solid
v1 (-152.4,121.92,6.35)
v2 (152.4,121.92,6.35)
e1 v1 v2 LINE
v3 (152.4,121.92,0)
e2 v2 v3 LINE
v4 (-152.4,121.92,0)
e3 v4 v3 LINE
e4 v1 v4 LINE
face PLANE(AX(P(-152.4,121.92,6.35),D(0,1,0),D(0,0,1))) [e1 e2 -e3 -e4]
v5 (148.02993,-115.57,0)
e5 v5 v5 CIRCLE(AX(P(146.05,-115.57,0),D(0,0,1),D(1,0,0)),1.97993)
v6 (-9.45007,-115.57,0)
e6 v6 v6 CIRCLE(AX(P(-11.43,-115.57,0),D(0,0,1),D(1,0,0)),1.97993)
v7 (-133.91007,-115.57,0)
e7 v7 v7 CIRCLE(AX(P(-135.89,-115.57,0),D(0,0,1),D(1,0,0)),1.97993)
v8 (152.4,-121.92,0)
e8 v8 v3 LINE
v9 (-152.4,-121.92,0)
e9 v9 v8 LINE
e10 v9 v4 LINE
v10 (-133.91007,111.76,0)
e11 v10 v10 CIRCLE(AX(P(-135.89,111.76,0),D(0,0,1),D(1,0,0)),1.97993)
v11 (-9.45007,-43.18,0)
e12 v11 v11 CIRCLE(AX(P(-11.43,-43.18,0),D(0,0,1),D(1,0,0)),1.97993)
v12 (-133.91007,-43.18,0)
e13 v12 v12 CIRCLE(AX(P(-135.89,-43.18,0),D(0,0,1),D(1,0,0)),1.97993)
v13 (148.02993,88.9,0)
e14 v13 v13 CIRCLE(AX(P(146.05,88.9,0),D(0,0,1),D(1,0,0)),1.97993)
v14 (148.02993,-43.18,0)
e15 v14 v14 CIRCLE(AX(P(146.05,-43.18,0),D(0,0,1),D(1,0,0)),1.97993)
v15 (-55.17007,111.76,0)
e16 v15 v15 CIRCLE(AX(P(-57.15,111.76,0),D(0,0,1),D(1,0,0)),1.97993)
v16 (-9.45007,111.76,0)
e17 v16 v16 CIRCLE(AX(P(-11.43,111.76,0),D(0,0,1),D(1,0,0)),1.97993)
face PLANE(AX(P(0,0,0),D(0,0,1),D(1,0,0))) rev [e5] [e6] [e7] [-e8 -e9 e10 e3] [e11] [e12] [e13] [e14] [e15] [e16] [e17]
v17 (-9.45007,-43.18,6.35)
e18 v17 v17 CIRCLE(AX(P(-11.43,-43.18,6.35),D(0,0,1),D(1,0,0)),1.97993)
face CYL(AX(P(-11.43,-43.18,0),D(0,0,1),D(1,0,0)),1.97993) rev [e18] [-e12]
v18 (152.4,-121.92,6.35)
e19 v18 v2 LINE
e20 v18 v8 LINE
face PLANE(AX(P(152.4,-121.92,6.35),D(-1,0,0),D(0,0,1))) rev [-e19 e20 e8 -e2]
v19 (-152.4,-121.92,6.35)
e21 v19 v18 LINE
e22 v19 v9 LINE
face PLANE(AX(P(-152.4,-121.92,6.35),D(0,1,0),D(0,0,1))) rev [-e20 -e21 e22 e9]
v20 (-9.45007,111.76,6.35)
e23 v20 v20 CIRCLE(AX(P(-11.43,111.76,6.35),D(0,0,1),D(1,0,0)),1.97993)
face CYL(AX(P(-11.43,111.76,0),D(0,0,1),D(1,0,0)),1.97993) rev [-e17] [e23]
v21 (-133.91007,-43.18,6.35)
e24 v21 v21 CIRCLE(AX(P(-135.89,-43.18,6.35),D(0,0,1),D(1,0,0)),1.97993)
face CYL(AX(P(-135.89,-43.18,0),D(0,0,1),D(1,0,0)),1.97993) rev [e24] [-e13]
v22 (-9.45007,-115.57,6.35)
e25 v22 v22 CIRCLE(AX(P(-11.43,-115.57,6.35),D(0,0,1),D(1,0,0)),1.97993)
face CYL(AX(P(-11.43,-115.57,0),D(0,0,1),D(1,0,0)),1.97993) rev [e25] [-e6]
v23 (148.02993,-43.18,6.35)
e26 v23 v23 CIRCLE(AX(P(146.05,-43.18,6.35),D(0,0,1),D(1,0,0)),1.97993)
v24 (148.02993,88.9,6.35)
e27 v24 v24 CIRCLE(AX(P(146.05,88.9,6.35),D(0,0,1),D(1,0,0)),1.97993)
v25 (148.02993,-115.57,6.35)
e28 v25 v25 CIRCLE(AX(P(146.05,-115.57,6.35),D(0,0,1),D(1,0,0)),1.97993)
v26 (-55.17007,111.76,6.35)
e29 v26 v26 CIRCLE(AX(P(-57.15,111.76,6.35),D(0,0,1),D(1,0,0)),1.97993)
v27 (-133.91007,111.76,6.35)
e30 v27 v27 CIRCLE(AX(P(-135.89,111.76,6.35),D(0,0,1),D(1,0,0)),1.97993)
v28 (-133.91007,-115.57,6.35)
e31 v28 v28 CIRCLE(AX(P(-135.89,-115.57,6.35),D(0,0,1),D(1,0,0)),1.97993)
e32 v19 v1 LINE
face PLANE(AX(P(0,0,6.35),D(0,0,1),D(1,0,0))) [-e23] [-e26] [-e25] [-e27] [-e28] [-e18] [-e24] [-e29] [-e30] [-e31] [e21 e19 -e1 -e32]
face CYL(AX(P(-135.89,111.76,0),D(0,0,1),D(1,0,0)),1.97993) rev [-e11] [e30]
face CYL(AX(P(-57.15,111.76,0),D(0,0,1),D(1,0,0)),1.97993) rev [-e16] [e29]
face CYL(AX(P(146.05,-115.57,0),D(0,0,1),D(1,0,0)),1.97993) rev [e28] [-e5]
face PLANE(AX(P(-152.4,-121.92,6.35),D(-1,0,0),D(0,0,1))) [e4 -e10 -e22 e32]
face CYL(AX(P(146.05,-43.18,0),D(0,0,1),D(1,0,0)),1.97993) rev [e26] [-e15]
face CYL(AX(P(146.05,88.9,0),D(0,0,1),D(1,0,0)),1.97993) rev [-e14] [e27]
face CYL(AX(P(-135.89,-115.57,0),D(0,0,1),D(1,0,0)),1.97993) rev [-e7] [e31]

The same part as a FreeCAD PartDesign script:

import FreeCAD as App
import Part
import Sketcher
from FreeCAD import Vector
Q = App.Units.Quantity


def add_polygon(sketch, points):
    """Adds a closed chain of lines whose ends are joined by coincident constraints."""
    first, n = sketch.GeometryCount, len(points)
    for a, b in zip(points, points[1:] + points[:1]):
        sketch.addGeometry(Part.LineSegment(App.Vector(*a, 0), App.Vector(*b, 0)), False)
    for i in range(n):
        sketch.addConstraint(Sketcher.Constraint("Coincident", first + i, 2, first + (i + 1) % n, 1))

doc = App.newDocument("Part")
body = doc.addObject("PartDesign::Body", "Body")

# Sketch on XY plane
sketch1 = body.newObject("Sketcher::SketchObject", "Sketch")
sketch1.AttachmentSupport = (doc.getObject("XY_Plane"), [""])
sketch1.MapMode = "FlatFace"
add_polygon(sketch1, [(-152, 122), (-152, -122), (152, -122), (152, 122)])  # lines 0-3
sketch1.addConstraint(Sketcher.Constraint("Vertical", 0))
sketch1.addConstraint(Sketcher.Constraint("Horizontal", 1))
sketch1.addConstraint(Sketcher.Constraint("Vertical", 2))
sketch1.addConstraint(Sketcher.Constraint("Horizontal", 3))
sketch1.addConstraint(Sketcher.Constraint("Symmetric", 0, 2, 2, 2, -1, 1))
sketch1.addConstraint(Sketcher.Constraint("DistanceX", 1, 1, 1, 2, Q("12 in")))
sketch1.addConstraint(Sketcher.Constraint("DistanceY", 0, 2, 0, 1, Q("9.6 in")))
pad1 = body.newObject("PartDesign::Pad", "Pad")
pad1.Profile = sketch1
pad1.Length = Q("0.25 in")

# Sketch on XY plane
sketch2 = body.newObject("Sketcher::SketchObject", "Sketch001")
sketch2.AttachmentSupport = (doc.getObject("XY_Plane"), [""])
sketch2.MapMode = "FlatFace"
sketch2.AttachmentOffset = App.Placement(Vector(0, 0, 0.25 * 25.4), App.Rotation())
sketch2.addGeometry(Part.Circle(Vector(-135.9, -43.2, 0), Vector(0, 0, 1), 2), False)
sketch2.addGeometry(Part.Circle(Vector(-11.4, -43.2, 0), Vector(0, 0, 1), 2), False)
sketch2.addGeometry(Part.Circle(Vector(146.1, -43.2, 0), Vector(0, 0, 1), 2), False)
sketch2.addGeometry(Part.Circle(Vector(-135.9, -115.6, 0), Vector(0, 0, 1), 2), False)
sketch2.addGeometry(Part.Circle(Vector(-11.4, -115.6, 0), Vector(0, 0, 1), 2), False)
sketch2.addGeometry(Part.Circle(Vector(146.1, -115.6, 0), Vector(0, 0, 1), 2), False)
sketch2.addGeometry(Part.Circle(Vector(-135.9, 111.8, 0), Vector(0, 0, 1), 2), False)
sketch2.addGeometry(Part.Circle(Vector(-57.1, 111.8, 0), Vector(0, 0, 1), 2), False)
sketch2.addGeometry(Part.Circle(Vector(-11.4, 111.8, 0), Vector(0, 0, 1), 2), False)
sketch2.addGeometry(Part.Circle(Vector(146.1, 88.9, 0), Vector(0, 0, 1), 2), False)
sketch2.addConstraint(Sketcher.Constraint("Equal", 0, 1))
sketch2.addConstraint(Sketcher.Constraint("Equal", 1, 2))
sketch2.addConstraint(Sketcher.Constraint("Equal", 2, 3))
sketch2.addConstraint(Sketcher.Constraint("Equal", 3, 4))
sketch2.addConstraint(Sketcher.Constraint("Equal", 4, 5))
sketch2.addConstraint(Sketcher.Constraint("Equal", 5, 6))
sketch2.addConstraint(Sketcher.Constraint("Equal", 6, 7))
sketch2.addConstraint(Sketcher.Constraint("Equal", 7, 8))
sketch2.addConstraint(Sketcher.Constraint("Equal", 8, 9))
sketch2.addConstraint(Sketcher.Constraint("Horizontal", 0, 3, 1, 3))
sketch2.addConstraint(Sketcher.Constraint("Horizontal", 1, 3, 2, 3))
sketch2.addConstraint(Sketcher.Constraint("Horizontal", 3, 3, 4, 3))
sketch2.addConstraint(Sketcher.Constraint("Horizontal", 4, 3, 5, 3))
sketch2.addConstraint(Sketcher.Constraint("Horizontal", 6, 3, 7, 3))
sketch2.addConstraint(Sketcher.Constraint("Horizontal", 7, 3, 8, 3))
sketch2.addConstraint(Sketcher.Constraint("Vertical", 0, 3, 3, 3))
sketch2.addConstraint(Sketcher.Constraint("Vertical", 1, 3, 4, 3))
sketch2.addConstraint(Sketcher.Constraint("Vertical", 2, 3, 5, 3))
sketch2.addConstraint(Sketcher.Constraint("Vertical", 3, 3, 6, 3))
sketch2.addConstraint(Sketcher.Constraint("Vertical", 4, 3, 8, 3))
sketch2.addConstraint(Sketcher.Constraint("Vertical", 5, 3, 9, 3))
sketch2.addConstraint(Sketcher.Constraint("DistanceX", 7, 3, 9, 3, Q("8 in")))
sketch2.addConstraint(Sketcher.Constraint("Diameter", 0, Q("0.1559 in")))
sketch2.addConstraint(Sketcher.Constraint("DistanceY", 0, 3, -1, 1, Q("1.7 in")))
sketch2.addConstraint(Sketcher.Constraint("DistanceY", -1, 1, 6, 3, Q("4.4 in")))
sketch2.addConstraint(Sketcher.Constraint("DistanceY", -1, 1, 9, 3, Q("3.5 in")))
sketch2.addConstraint(Sketcher.Constraint("DistanceX", 0, 3, 1, 3, Q("4.9 in")))
sketch2.addConstraint(Sketcher.Constraint("DistanceX", 1, 3, 2, 3, Q("6.2 in")))
sketch2.addConstraint(Sketcher.Constraint("DistanceX", 0, 3, -1, 1, Q("5.35 in")))
sketch2.addConstraint(Sketcher.Constraint("DistanceY", 3, 3, -1, 1, Q("4.55 in")))
pocket1 = body.newObject("PartDesign::Pocket", "Pocket")
pocket1.Profile = sketch2
pocket1.Type = "ThroughAll"

doc.recompute()
